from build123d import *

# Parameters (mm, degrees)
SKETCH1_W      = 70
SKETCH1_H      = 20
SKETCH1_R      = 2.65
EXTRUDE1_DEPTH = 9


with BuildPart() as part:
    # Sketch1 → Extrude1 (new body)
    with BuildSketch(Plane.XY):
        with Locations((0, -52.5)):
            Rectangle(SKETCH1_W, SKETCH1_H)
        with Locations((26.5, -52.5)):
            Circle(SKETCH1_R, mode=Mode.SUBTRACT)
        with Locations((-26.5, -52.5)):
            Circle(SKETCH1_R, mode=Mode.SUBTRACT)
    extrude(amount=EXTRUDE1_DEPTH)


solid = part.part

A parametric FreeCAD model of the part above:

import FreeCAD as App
import Part
import Sketcher
from FreeCAD import Vector


def add_polygon(sketch, points):
    """Adds a closed chain of lines whose ends are joined by coincident constraints."""
    first, n = sketch.GeometryCount, len(points)
    for a, b in zip(points, points[1:] + points[:1]):
        sketch.addGeometry(Part.LineSegment(App.Vector(*a, 0), App.Vector(*b, 0)), False)
    for i in range(n):
        sketch.addConstraint(Sketcher.Constraint("Coincident", first + i, 2, first + (i + 1) % n, 1))

doc = App.newDocument("Part")
body = doc.addObject("PartDesign::Body", "Body")

sketch1 = body.newObject("Sketcher::SketchObject", "Sketch")
sketch1.AttachmentSupport = (doc.getObject("XY_Plane"), [""])
sketch1.MapMode = "FlatFace"
add_polygon(sketch1, [(-35, -42.5), (-35, -62.5), (35, -62.5), (35, -42.5)])
sketch1.addGeometry(Part.Circle(Vector(-26.5, -52.5, 0), Vector(0, 0, 1), 2.6), False)
sketch1.addGeometry(Part.Circle(Vector(26.5, -52.5, 0), Vector(0, 0, 1), 2.6), False)
sketch1.addConstraint(Sketcher.Constraint("Vertical", 0))
sketch1.addConstraint(Sketcher.Constraint("Horizontal", 1))
sketch1.addConstraint(Sketcher.Constraint("Vertical", 2))
sketch1.addConstraint(Sketcher.Constraint("Horizontal", 3))
sketch1.addConstraint(Sketcher.Constraint("Equal", 4, 5))
sketch1.addConstraint(Sketcher.Constraint("Symmetric", 4, 3, 5, 3, -2))
sketch1.addConstraint(Sketcher.Constraint("Diameter", 4, 5.3))
sketch1.addConstraint(Sketcher.Constraint("DistanceX", 1, 1, 1, 2, 70.0))
sketch1.addConstraint(Sketcher.Constraint("DistanceY", 0, 2, 0, 1, 20.0))
sketch1.addConstraint(Sketcher.Constraint("DistanceX", 0, 2, -1, 1, 35.0))
sketch1.addConstraint(Sketcher.Constraint("DistanceX", 4, 3, 5, 3, 53.0))
sketch1.addConstraint(Sketcher.Constraint("DistanceY", 0, 2, 4, 3, 10.0))
sketch1.addConstraint(Sketcher.Constraint("DistanceY", 4, 3, -1, 1, 52.5))
pad1 = body.newObject("PartDesign::Pad", "Pad")
pad1.Profile = sketch1
pad1.Length = 9

doc.recompute()
